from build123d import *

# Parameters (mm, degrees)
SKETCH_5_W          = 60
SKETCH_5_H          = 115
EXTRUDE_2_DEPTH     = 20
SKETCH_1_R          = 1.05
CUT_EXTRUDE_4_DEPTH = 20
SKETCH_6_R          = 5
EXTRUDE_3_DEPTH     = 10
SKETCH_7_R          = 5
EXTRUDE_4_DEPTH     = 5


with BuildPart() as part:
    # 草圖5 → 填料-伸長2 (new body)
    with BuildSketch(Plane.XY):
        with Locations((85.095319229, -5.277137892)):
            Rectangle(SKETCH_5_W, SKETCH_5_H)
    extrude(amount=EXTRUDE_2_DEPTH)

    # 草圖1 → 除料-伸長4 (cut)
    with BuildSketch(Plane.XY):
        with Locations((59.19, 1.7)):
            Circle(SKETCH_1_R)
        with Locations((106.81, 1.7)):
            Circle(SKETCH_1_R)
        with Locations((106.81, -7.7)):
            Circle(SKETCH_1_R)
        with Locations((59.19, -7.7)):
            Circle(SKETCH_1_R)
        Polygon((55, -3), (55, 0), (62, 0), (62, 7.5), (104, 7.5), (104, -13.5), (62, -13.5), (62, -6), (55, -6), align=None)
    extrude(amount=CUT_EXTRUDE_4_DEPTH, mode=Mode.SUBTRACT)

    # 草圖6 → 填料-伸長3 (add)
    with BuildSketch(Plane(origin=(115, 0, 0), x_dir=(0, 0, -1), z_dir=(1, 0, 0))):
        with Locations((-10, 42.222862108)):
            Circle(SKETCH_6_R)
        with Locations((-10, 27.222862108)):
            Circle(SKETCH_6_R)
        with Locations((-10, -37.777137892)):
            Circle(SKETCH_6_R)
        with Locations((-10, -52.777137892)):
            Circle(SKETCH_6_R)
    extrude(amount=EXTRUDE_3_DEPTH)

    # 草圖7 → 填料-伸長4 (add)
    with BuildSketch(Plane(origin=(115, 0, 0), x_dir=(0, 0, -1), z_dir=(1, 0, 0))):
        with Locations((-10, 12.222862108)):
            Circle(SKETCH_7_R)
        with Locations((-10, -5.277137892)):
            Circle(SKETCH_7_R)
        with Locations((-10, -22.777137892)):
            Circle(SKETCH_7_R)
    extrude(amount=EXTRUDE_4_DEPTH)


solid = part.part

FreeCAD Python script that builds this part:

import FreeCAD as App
import Part
import Sketcher

V = App.Vector
Q = App.Units.Quantity

doc = App.newDocument("Part")
body = doc.addObject("PartDesign::Body", "Body")

# Sketch on XY plane
sketch1 = doc.addObject("Sketcher::SketchObject", "Sketch")
body.addObject(sketch1)
sketch1.AttachmentSupport = (doc.XY_Plane, [""])
sketch1.MapMode = "FlatFace"
sketch1.addGeometry([
    Part.LineSegment(V(55, 52, 0), V(55, -63, 0)),
    Part.LineSegment(V(55, -63, 0), V(115, -63, 0)),
    Part.LineSegment(V(115, -63, 0), V(115, 52, 0)),
    Part.LineSegment(V(115, 52, 0), V(55, 52, 0)),
], False)
sketch1.addConstraint([
    Sketcher.Constraint("Coincident", 0, 2, 1, 1),
    Sketcher.Constraint("Coincident", 1, 2, 2, 1),
    Sketcher.Constraint("Coincident", 2, 2, 3, 1),
    Sketcher.Constraint("Coincident", 3, 2, 0, 1),
    Sketcher.Constraint("Vertical", 0),
    Sketcher.Constraint("Horizontal", 1),
    Sketcher.Constraint("Vertical", 2),
    Sketcher.Constraint("Horizontal", 3),
    Sketcher.Constraint("DistanceX", 1, 1, 1, 2, Q("60 mm")),
    Sketcher.Constraint("DistanceY", 0, 2, 0, 1, Q("115 mm")),
    Sketcher.Constraint("DistanceX", -1, 1, 0, 2, Q("55.095319 mm")),
    Sketcher.Constraint("DistanceY", 0, 2, -1, 1, Q("62.777138 mm")),
])
pad1 = doc.addObject("PartDesign::Pad", "Pad")
body.addObject(pad1)
pad1.Profile = sketch1
pad1.Length = 20

# Sketch on XY plane
sketch2 = doc.addObject("Sketcher::SketchObject", "Sketch001")
body.addObject(sketch2)
sketch2.AttachmentSupport = (doc.XY_Plane, [""])
sketch2.MapMode = "FlatFace"
sketch2.addGeometry([
    Part.Circle(V(59.2, 1.7, 0), V(0, 0, 1), 1.1),  # 0
    Part.Circle(V(106.8, 1.7, 0), V(0, 0, 1), 1.1),  # 1
    Part.Circle(V(106.8, -7.7, 0), V(0, 0, 1), 1.1),  # 2
    Part.Circle(V(59.2, -7.7, 0), V(0, 0, 1), 1.1),  # 3
    Part.LineSegment(V(55, 0, 0), V(55, -6, 0)),  # 4
    Part.LineSegment(V(55, -6, 0), V(62, -6, 0)),  # 5
    Part.LineSegment(V(62, -6, 0), V(62, -13.5, 0)),  # 6
    Part.LineSegment(V(62, -13.5, 0), V(104, -13.5, 0)),  # 7
    Part.LineSegment(V(104, -13.5, 0), V(104, 7.5, 0)),  # 8
    Part.LineSegment(V(104, 7.5, 0), V(62, 7.5, 0)),  # 9
    Part.LineSegment(V(62, 7.5, 0), V(62, 0, 0)),  # 10
    Part.LineSegment(V(62, 0, 0), V(55, 0, 0)),  # 11
], False)
sketch2.addConstraint([
    Sketcher.Constraint("Coincident", 4, 2, 5, 1),
    Sketcher.Constraint("Coincident", 5, 2, 6, 1),
    Sketcher.Constraint("Coincident", 6, 2, 7, 1),
    Sketcher.Constraint("Coincident", 7, 2, 8, 1),
    Sketcher.Constraint("Coincident", 8, 2, 9, 1),
    Sketcher.Constraint("Coincident", 9, 2, 10, 1),
    Sketcher.Constraint("Coincident", 10, 2, 11, 1),
    Sketcher.Constraint("Coincident", 11, 2, 4, 1),
    Sketcher.Constraint("Vertical", 4),
    Sketcher.Constraint("Horizontal", 5),
    Sketcher.Constraint("Vertical", 6),
    Sketcher.Constraint("Horizontal", 7),
    Sketcher.Constraint("Vertical", 8),
    Sketcher.Constraint("Horizontal", 9),
    Sketcher.Constraint("Vertical", 10),
    Sketcher.Constraint("Horizontal", 11),
    Sketcher.Constraint("Equal", 0, 1),
    Sketcher.Constraint("Equal", 1, 2),
    Sketcher.Constraint("Equal", 2, 3),
    Sketcher.Constraint("PointOnObject", 10, 2, -1),
    Sketcher.Constraint("Horizontal", 0, 3, 1, 3),
    Sketcher.Constraint("Horizontal", 2, 3, 3, 3),
    Sketcher.Constraint("Vertical", 1, 3, 2, 3),
    Sketcher.Constraint("Vertical", 0, 3, 3, 3),
    Sketcher.Constraint("Vertical", 6, 2, 9, 2),
    Sketcher.Constraint("Equal", 6, 10),
    Sketcher.Constraint("Diameter", 0, Q("2.1 mm")),
    Sketcher.Constraint("DistanceX", 5, 1, 5, 2, Q("7 mm")),
    Sketcher.Constraint("DistanceX", 7, 1, 7, 2, Q("42 mm")),
    Sketcher.Constraint("DistanceY", 4, 2, 4, 1, Q("6 mm")),
    Sketcher.Constraint("DistanceY", 8, 1, 8, 2, Q("21 mm")),
    Sketcher.Constraint("DistanceX", -1, 1, 4, 2, Q("55 mm")),
    Sketcher.Constraint("DistanceY", -1, 1, 0, 3, Q("1.7 mm")),
    Sketcher.Constraint("DistanceY", 2, 3, -1, 1, Q("7.7 mm")),
    Sketcher.Constraint("DistanceX", -1, 1, 0, 3, Q("59.19 mm")),
    Sketcher.Constraint("DistanceX", -1, 1, 1, 3, Q("106.81 mm")),
])
pocket1 = doc.addObject("PartDesign::Pocket", "Pocket")
body.addObject(pocket1)
pocket1.Profile = sketch2
pocket1.Length = 20
pocket1.Reversed = True

# Sketch on YZ plane
sketch3 = doc.addObject("Sketcher::SketchObject", "Sketch002")
body.addObject(sketch3)
sketch3.AttachmentSupport = (doc.YZ_Plane, [""])
sketch3.MapMode = "FlatFace"
sketch3.AttachmentOffset = App.Placement(V(0, 0, 115), App.Rotation())
sketch3.addGeometry([
    Part.Circle(V(42, 10, 0), V(0, 0, 1), 5),
    Part.Circle(V(27, 10, 0), V(0, 0, 1), 5),
    Part.Circle(V(-38, 10, 0), V(0, 0, 1), 5),
    Part.Circle(V(-53, 10, 0), V(0, 0, 1), 5),
], False)
sketch3.addConstraint([
    Sketcher.Constraint("Equal", 0, 1),
    Sketcher.Constraint("Equal", 1, 2),
    Sketcher.Constraint("Equal", 2, 3),
    Sketcher.Constraint("Horizontal", 0, 3, 1, 3),
    Sketcher.Constraint("Horizontal", 1, 3, 2, 3),
    Sketcher.Constraint("Horizontal", 2, 3, 3, 3),
    Sketcher.Constraint("Diameter", 0, Q("10 mm")),
    Sketcher.Constraint("DistanceY", -1, 1, 0, 3, Q("10 mm")),
    Sketcher.Constraint("DistanceX", 1, 3, 0, 3, Q("15 mm")),
    Sketcher.Constraint("DistanceX", 2, 3, 1, 3, Q("65 mm")),
    Sketcher.Constraint("DistanceX", 3, 3, 2, 3, Q("15 mm")),
    Sketcher.Constraint("DistanceX", -1, 1, 0, 3, Q("42.222862 mm")),
])
pad2 = doc.addObject("PartDesign::Pad", "Pad001")
body.addObject(pad2)
pad2.Profile = sketch3
pad2.Length = 10

# Sketch on YZ plane
sketch4 = doc.addObject("Sketcher::SketchObject", "Sketch003")
body.addObject(sketch4)
sketch4.AttachmentSupport = (doc.YZ_Plane, [""])
sketch4.MapMode = "FlatFace"
sketch4.AttachmentOffset = App.Placement(V(0, 0, 115), App.Rotation())
sketch4.addGeometry([
    Part.Circle(V(12, 10, 0), V(0, 0, 1), 5),
    Part.Circle(V(-5, 10, 0), V(0, 0, 1), 5),
    Part.Circle(V(-23, 10, 0), V(0, 0, 1), 5),
], False)
sketch4.addConstraint([
    Sketcher.Constraint("Equal", 0, 1),
    Sketcher.Constraint("Equal", 1, 2),
    Sketcher.Constraint("Horizontal", 0, 3, 1, 3),
    Sketcher.Constraint("Horizontal", 1, 3, 2, 3),
    Sketcher.Constraint("Diameter", 0, Q("10 mm")),
    Sketcher.Constraint("DistanceY", -1, 1, 0, 3, Q("10 mm")),
    Sketcher.Constraint("DistanceX", 2, 3, 0, 3, Q("35 mm")),
    Sketcher.Constraint("DistanceX", 1, 3, 0, 3, Q("17.5 mm")),
    Sketcher.Constraint("DistanceX", -1, 1, 0, 3, Q("12.222862 mm")),
])
pad3 = doc.addObject("PartDesign::Pad", "Pad002")
body.addObject(pad3)
pad3.Profile = sketch4
pad3.Length = 5

doc.recompute()
